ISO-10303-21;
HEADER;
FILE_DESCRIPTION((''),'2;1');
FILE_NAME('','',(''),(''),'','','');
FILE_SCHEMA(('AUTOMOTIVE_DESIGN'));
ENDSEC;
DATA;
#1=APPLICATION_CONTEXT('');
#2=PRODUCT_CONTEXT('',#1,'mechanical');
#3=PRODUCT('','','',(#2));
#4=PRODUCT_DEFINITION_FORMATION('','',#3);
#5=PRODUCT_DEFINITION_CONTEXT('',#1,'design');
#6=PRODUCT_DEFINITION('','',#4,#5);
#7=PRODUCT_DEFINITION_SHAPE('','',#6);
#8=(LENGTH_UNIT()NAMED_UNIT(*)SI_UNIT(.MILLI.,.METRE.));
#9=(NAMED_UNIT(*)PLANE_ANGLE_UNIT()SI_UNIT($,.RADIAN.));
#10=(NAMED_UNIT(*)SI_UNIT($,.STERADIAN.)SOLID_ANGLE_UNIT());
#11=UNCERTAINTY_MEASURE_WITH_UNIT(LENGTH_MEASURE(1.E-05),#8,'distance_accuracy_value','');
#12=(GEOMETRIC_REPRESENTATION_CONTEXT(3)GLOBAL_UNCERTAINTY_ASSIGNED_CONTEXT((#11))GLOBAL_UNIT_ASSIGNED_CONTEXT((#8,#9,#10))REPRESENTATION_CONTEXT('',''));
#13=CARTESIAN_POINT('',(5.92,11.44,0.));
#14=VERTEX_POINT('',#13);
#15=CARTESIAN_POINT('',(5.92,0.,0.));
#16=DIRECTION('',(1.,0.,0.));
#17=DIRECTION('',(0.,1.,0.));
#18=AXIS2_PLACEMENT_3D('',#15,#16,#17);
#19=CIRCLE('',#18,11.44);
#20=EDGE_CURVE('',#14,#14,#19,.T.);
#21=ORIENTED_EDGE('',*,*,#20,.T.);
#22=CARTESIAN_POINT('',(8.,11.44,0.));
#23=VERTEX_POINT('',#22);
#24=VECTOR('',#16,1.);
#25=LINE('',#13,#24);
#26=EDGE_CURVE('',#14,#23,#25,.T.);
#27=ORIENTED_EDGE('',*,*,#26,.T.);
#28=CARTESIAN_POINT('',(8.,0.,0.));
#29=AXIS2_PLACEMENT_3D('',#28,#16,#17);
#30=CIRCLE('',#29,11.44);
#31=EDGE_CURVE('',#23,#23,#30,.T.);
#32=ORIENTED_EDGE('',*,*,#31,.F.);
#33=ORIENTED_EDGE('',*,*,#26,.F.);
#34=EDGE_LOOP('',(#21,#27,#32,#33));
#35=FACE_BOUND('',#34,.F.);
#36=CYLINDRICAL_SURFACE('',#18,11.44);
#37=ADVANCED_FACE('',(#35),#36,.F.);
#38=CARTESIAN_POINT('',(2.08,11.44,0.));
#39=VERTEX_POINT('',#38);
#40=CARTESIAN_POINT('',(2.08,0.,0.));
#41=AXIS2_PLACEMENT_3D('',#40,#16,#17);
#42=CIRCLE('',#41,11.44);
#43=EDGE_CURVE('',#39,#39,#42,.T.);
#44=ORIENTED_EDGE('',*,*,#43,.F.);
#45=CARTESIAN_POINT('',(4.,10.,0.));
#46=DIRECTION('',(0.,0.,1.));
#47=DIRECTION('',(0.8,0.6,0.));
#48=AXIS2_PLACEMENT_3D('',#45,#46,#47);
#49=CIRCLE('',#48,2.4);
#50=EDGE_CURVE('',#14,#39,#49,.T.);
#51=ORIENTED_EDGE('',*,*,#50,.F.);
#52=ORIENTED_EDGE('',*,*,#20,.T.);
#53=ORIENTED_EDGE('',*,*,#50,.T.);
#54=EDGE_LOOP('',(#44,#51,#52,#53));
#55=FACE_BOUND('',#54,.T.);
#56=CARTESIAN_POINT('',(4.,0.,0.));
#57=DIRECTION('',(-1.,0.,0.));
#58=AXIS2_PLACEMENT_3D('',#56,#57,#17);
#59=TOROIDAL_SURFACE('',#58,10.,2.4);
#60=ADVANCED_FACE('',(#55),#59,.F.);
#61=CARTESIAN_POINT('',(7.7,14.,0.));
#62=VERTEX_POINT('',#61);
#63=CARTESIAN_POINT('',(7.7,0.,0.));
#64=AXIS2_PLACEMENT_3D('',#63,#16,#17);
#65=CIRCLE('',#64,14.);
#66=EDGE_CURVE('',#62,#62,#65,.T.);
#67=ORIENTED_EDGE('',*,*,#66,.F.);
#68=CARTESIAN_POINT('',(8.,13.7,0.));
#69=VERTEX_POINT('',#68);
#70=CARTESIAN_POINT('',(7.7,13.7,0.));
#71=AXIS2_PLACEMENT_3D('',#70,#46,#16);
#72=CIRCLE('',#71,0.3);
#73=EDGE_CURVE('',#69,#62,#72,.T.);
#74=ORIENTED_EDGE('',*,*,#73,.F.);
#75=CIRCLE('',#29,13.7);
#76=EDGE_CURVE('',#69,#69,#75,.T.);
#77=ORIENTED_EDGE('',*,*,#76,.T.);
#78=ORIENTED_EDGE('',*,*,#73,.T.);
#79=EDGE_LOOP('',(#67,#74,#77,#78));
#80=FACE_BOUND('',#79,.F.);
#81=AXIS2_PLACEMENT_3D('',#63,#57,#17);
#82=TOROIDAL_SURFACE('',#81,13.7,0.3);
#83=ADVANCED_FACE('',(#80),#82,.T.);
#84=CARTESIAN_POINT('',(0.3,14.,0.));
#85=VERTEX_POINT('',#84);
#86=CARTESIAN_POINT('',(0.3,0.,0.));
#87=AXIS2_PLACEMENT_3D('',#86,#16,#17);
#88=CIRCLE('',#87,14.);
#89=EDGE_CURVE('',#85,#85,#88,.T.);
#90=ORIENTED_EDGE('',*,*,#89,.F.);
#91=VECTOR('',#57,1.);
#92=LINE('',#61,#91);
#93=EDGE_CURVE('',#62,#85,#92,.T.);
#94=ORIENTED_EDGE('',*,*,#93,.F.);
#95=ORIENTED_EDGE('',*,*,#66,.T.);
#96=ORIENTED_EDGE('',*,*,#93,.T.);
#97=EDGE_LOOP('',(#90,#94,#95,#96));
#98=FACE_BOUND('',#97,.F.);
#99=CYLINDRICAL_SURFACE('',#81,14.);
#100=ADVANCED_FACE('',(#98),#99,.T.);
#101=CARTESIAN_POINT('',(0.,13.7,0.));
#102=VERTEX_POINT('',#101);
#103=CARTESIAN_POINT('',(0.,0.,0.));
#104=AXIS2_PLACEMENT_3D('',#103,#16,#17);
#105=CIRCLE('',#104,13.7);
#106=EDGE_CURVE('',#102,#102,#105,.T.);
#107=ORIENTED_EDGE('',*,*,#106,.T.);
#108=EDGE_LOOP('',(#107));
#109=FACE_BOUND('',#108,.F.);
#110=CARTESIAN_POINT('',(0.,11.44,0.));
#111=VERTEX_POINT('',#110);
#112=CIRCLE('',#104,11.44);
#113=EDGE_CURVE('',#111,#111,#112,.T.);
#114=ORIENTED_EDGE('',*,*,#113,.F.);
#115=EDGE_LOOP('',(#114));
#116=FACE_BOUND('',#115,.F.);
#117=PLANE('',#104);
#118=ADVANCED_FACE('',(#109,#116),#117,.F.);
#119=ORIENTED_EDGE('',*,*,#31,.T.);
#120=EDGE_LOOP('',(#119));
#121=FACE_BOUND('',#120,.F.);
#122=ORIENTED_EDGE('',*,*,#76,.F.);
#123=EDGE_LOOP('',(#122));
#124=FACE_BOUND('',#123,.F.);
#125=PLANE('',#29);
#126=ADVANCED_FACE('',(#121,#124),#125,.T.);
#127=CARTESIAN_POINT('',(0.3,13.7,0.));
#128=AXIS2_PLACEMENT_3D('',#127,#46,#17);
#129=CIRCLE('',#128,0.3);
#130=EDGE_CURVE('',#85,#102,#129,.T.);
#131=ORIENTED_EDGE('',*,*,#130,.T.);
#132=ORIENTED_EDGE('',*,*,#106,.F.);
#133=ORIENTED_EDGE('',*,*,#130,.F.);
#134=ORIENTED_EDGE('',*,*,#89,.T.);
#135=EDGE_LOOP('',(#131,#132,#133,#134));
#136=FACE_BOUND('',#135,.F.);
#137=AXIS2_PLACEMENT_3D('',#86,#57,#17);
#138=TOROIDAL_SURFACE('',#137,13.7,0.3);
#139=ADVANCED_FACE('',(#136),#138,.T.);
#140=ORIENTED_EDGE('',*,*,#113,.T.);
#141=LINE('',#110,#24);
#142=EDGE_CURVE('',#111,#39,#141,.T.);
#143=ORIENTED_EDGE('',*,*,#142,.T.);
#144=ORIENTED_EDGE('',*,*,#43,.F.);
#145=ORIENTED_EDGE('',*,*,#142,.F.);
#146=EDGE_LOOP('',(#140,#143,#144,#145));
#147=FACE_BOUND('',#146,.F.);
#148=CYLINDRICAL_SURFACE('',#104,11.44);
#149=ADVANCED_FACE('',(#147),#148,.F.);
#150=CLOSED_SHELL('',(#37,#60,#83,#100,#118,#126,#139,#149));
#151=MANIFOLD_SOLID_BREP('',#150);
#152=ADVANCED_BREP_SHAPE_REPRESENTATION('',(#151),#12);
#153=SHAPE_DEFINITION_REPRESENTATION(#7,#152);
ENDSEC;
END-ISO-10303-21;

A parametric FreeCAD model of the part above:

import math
import FreeCAD as App
import Part
import Sketcher

V = App.Vector

doc = App.newDocument("Part")
body = doc.addObject("PartDesign::Body", "Body")

# Sketch on XY plane
sketch1 = body.newObject("Sketcher::SketchObject", "Sketch")
sketch1.AttachmentSupport = (doc.getObject("XY_Plane"), [""])
sketch1.MapMode = "FlatFace"
sketch1.addGeometry(Part.LineSegment(V(0, 13.7, 0), V(0, 11.44, 0)), False)
sketch1.addGeometry(Part.LineSegment(V(0, 11.44, 0), V(2.08, 11.44, 0)), False)
sketch1.addGeometry(Part.ArcOfCircle(Part.Circle(V(4, 10, 0), V(0, 0, 1), 2.4), math.radians(37), math.radians(143)), False)
sketch1.addGeometry(Part.LineSegment(V(5.92, 11.44, 0), V(8, 11.44, 0)), False)
sketch1.addGeometry(Part.LineSegment(V(8, 11.44, 0), V(8, 13.7, 0)), False)
sketch1.addGeometry(Part.ArcOfCircle(Part.Circle(V(7.7, 13.7, 0), V(0, 0, 1), 0.3), math.radians(0), math.radians(90)), False)
sketch1.addGeometry(Part.LineSegment(V(7.7, 14, 0), V(0.3, 14, 0)), False)
sketch1.addGeometry(Part.ArcOfCircle(Part.Circle(V(0.3, 13.7, 0), V(0, 0, 1), 0.3), math.radians(90), math.radians(180)), False)
sketch1.addConstraint(Sketcher.Constraint("Coincident", 0, 2, 1, 1))
sketch1.addConstraint(Sketcher.Constraint("Coincident", 1, 2, 2, 2))
sketch1.addConstraint(Sketcher.Constraint("Coincident", 2, 1, 3, 1))
sketch1.addConstraint(Sketcher.Constraint("Coincident", 3, 2, 4, 1))
sketch1.addConstraint(Sketcher.Constraint("Tangent", 4, 2, 5, 1))
sketch1.addConstraint(Sketcher.Constraint("Tangent", 5, 2, 6, 1))
sketch1.addConstraint(Sketcher.Constraint("Tangent", 6, 2, 7, 1))
sketch1.addConstraint(Sketcher.Constraint("Tangent", 7, 2, 0, 1))
sketch1.addConstraint(Sketcher.Constraint("Vertical", 0))
sketch1.addConstraint(Sketcher.Constraint("Horizontal", 1))
sketch1.addConstraint(Sketcher.Constraint("Horizontal", 3))
sketch1.addConstraint(Sketcher.Constraint("Vertical", 4))
sketch1.addConstraint(Sketcher.Constraint("Horizontal", 6))
sketch1.addConstraint(Sketcher.Constraint("Equal", 5, 7))
sketch1.addConstraint(Sketcher.Constraint("PointOnObject", 0, 2, -2))
sketch1.addConstraint(Sketcher.Constraint("Horizontal", 1, 2, 2, 1))
sketch1.addConstraint(Sketcher.Constraint("Equal", 1, 3))
sketch1.addConstraint(Sketcher.Constraint("Radius", 2, 2.4))
sketch1.addConstraint(Sketcher.Constraint("Radius", 5, 0.3))
sketch1.addConstraint(Sketcher.Constraint("DistanceX", 6, 2, 6, 1, 7.4))
sketch1.addConstraint(Sketcher.Constraint("DistanceY", -1, 1, 2, 3, 10.0))
sketch1.addConstraint(Sketcher.Constraint("DistanceY", -1, 1, 5, 2, 14.0))
sketch1.addConstraint(Sketcher.Constraint("DistanceX", 1, 1, 1, 2, 2.08))
revolution = body.newObject("PartDesign::Revolution", "Revolution")
revolution.Profile = sketch1
revolution.ReferenceAxis = (sketch1, ["H_Axis"])
revolution.Angle = 360

doc.recompute()
